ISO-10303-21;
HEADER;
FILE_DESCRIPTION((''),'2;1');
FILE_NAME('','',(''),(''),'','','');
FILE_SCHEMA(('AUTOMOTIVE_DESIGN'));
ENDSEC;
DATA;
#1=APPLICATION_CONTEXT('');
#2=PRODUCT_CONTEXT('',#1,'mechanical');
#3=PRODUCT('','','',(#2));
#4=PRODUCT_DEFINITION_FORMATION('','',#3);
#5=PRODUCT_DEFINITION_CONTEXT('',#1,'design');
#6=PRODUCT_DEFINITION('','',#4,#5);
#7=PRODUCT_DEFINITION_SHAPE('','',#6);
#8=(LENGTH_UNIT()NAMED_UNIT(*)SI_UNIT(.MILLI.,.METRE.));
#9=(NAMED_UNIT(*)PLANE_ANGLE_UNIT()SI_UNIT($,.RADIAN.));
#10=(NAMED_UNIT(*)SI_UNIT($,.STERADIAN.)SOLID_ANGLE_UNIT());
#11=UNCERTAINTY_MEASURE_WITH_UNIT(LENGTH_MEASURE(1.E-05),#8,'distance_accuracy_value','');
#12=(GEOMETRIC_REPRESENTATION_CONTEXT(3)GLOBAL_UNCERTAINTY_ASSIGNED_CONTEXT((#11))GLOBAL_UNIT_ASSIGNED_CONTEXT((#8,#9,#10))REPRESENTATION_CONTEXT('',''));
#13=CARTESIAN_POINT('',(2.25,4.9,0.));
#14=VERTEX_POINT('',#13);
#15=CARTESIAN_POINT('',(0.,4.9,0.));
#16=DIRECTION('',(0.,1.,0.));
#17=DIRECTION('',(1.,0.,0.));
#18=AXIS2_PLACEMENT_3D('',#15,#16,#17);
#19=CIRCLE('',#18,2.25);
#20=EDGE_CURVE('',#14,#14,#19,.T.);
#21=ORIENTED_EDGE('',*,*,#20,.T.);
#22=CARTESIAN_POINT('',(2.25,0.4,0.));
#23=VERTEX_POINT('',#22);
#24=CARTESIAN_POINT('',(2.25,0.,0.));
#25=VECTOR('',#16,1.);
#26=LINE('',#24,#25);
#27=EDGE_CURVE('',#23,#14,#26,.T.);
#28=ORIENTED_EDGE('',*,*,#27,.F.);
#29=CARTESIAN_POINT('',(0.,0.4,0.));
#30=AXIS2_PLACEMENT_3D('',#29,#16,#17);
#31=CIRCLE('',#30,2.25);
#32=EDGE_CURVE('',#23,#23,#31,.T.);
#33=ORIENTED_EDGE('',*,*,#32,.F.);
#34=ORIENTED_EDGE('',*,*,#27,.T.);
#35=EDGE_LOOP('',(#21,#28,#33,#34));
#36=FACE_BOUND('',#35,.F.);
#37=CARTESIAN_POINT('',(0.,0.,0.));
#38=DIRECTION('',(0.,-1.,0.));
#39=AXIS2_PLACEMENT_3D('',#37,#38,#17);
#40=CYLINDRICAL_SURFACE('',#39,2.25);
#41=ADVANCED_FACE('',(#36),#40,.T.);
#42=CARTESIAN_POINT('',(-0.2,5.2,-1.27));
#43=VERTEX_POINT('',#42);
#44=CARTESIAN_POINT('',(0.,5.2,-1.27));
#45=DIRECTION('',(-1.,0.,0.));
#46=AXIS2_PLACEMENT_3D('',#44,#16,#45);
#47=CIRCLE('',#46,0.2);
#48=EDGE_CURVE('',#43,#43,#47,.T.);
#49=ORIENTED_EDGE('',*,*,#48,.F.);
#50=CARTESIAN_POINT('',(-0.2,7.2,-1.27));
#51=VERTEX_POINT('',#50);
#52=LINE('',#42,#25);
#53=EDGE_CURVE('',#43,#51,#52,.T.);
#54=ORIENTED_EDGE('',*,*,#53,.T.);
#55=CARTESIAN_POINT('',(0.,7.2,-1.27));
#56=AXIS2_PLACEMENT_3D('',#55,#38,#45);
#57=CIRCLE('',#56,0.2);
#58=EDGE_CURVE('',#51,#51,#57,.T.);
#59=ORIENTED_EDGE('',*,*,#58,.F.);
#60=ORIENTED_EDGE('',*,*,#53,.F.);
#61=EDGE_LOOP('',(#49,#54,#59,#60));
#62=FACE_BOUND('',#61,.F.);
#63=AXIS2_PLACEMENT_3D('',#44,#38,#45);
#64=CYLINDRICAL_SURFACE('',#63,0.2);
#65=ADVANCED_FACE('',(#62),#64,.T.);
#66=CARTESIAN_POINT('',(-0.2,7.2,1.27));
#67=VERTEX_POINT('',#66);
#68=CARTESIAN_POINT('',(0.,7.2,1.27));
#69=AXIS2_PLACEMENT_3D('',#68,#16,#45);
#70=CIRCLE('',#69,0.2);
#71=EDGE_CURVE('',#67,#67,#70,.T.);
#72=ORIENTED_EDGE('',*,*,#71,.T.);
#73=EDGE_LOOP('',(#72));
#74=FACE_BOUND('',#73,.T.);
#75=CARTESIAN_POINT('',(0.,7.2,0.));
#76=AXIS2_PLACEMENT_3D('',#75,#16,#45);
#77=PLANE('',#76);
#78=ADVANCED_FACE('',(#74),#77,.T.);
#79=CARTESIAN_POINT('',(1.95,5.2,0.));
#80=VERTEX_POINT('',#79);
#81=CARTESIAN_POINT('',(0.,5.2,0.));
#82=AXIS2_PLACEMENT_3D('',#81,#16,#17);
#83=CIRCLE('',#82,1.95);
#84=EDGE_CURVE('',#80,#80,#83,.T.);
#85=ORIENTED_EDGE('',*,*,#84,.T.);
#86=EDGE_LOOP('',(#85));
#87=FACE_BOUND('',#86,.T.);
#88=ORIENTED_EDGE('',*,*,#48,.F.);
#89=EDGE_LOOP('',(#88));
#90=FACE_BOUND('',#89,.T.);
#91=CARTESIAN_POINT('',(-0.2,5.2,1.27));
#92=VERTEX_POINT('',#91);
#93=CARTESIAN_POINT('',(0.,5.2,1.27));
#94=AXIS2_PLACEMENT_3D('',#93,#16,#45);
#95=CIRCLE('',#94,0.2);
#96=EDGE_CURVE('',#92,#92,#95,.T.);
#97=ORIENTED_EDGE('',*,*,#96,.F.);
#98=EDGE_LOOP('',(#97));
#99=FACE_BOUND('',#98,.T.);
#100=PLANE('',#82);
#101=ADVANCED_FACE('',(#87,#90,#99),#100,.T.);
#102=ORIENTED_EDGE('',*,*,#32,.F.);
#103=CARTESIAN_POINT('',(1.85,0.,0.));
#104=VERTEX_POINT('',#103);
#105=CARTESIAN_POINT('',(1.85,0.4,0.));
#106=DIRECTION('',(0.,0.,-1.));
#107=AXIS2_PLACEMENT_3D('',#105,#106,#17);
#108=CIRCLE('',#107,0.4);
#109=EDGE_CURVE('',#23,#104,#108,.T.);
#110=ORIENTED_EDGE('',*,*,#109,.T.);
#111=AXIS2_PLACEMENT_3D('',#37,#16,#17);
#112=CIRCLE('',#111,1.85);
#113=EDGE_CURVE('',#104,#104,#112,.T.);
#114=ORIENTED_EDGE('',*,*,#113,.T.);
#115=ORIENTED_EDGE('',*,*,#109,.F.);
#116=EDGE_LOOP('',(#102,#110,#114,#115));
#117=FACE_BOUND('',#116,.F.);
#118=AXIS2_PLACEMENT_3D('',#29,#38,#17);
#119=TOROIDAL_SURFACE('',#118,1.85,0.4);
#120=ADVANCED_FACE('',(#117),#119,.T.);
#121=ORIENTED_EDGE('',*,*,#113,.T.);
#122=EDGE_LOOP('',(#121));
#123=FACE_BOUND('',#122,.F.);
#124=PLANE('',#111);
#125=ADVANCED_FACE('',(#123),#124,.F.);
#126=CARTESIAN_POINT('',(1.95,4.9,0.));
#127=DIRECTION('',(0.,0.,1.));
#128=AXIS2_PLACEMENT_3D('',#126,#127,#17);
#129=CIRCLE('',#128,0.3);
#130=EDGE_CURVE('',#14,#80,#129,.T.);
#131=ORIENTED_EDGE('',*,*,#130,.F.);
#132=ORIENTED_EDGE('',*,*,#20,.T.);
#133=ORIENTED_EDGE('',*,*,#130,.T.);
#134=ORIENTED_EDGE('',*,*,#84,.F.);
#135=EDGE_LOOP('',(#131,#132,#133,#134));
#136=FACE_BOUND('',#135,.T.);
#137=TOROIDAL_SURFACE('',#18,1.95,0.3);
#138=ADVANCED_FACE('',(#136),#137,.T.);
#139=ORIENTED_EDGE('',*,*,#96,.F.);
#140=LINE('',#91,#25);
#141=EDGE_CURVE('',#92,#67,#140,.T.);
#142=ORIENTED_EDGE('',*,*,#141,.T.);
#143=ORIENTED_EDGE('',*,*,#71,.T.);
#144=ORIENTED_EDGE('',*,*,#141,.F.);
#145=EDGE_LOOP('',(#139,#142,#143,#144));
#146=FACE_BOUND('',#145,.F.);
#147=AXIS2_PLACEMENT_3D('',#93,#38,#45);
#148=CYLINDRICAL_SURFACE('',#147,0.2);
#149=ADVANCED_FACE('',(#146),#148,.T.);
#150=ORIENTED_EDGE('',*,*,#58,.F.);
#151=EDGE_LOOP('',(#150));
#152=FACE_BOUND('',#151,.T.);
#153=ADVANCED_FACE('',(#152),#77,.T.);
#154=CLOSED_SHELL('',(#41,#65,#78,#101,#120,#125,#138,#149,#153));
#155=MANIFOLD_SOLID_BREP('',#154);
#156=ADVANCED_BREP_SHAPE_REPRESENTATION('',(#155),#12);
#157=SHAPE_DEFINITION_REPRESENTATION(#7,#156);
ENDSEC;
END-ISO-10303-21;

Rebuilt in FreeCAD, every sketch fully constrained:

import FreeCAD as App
import Part
import Sketcher
Q = App.Units.Quantity


def edges_at(feature, points):
    """Names of the edges that pass closest to the given points."""
    edges = feature.Shape.Edges
    near = lambda p: min(range(len(edges)), key=lambda i: edges[i].distToShape(Part.Vertex(*p))[0])
    return sorted({f"Edge{near(p) + 1}" for p in points})

doc = App.newDocument("Part")
params = doc.addObject("Spreadsheet::Sheet", "Params")
for row, (alias, value) in enumerate([
    ("sketch1_diameter", "4.5 mm"),
    ("pad1_length", "5.2 mm"),
    ("sketch2_diameter", "0.4 mm"),
    ("pad2_length", "2 mm"),
    ("fillet_radius", "0.4 mm"),
    ("fillet2_radius", "0.3 mm"),
], start=1):
    params.set(f"A{row}", alias)
    params.set(f"B{row}", "=" + value)
    params.setAlias(f"B{row}", alias)

body = doc.addObject("PartDesign::Body", "Body")

# Sketch on XZ plane
sketch1 = doc.addObject("Sketcher::SketchObject", "Sketch")
body.addObject(sketch1)
sketch1.AttachmentSupport = (doc.XZ_Plane, [""])
sketch1.MapMode = "FlatFace"
sketch1.addGeometry(Part.Circle(App.Vector(0, 0, 0), App.Vector(0, 0, 1), 2.25), False)
sketch1.addConstraint([
    Sketcher.Constraint("Coincident", 0, 3, -1, 1),
    Sketcher.Constraint("Diameter", 0, Q("4.5 mm")),
])
sketch1.setExpression("Constraints[1]", "Params.sketch1_diameter")
pad1 = doc.addObject("PartDesign::Pad", "Pad")
body.addObject(pad1)
pad1.Profile = sketch1
pad1.setExpression("Length", "Params.pad1_length")
pad1.Reversed = True

# Sketch on XZ plane
sketch2 = doc.addObject("Sketcher::SketchObject", "Sketch001")
body.addObject(sketch2)
sketch2.AttachmentSupport = (doc.XZ_Plane, [""])
sketch2.MapMode = "FlatFace"
sketch2.AttachmentOffset = App.Placement(App.Vector(0, 0, -5.2), App.Rotation())
sketch2.addGeometry([
    Part.Circle(App.Vector(0, -1.27, 0), App.Vector(0, 0, 1), 0.2),
    Part.Circle(App.Vector(0, 1.27, 0), App.Vector(0, 0, 1), 0.2),
], False)
sketch2.addConstraint([
    Sketcher.Constraint("Equal", 0, 1),
    Sketcher.Constraint("Symmetric", 0, 3, 1, 3, -1, 1),
    Sketcher.Constraint("PointOnObject", 0, 3, -2),
    Sketcher.Constraint("Diameter", 0, Q("0.4 mm")),
    Sketcher.Constraint("DistanceY", 0, 3, -1, 1, Q("1.27 mm")),
])
sketch2.setExpression("Constraints[3]", "Params.sketch2_diameter")
pad2 = doc.addObject("PartDesign::Pad", "Pad001")
body.addObject(pad2)
pad2.Profile = sketch2
pad2.setExpression("Length", "Params.pad2_length")
pad2.Reversed = True
doc.recompute()

fillet = doc.addObject("PartDesign::Fillet", "Fillet")
body.addObject(fillet)
fillet.Base = (pad2, edges_at(pad2, [(-2.098, 0, 0.814)]))
fillet.setExpression("Radius", "Params.fillet_radius")
doc.recompute()

fillet2 = doc.addObject("PartDesign::Fillet", "Fillet001")
body.addObject(fillet2)
fillet2.Base = (fillet, edges_at(fillet, [(-2.098, 5.2, 0.814)]))
fillet2.setExpression("Radius", "Params.fillet2_radius")

doc.recompute()
